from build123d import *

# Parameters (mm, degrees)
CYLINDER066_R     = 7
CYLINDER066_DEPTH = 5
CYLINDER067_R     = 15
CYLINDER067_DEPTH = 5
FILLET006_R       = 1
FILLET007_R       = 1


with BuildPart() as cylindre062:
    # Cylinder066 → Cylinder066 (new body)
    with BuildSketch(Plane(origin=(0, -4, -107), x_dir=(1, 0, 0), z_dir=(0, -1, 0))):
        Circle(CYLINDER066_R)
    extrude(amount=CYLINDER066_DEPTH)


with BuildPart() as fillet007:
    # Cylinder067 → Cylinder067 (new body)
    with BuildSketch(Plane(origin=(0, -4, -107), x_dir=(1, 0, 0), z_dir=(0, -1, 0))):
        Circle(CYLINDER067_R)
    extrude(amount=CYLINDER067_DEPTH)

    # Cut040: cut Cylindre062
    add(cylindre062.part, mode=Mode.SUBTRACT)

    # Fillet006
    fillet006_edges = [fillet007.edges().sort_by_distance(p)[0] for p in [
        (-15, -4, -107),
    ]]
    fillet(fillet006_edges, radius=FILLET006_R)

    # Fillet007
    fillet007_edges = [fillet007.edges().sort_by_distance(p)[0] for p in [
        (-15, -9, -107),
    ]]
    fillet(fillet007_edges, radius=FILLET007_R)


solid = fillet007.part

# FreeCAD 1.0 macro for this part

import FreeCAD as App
import Part
import Sketcher

V = App.Vector


def edges_at(feature, points):
    """Names of the edges that pass closest to the given points."""
    edges = feature.Shape.Edges
    near = lambda p: min(range(len(edges)), key=lambda i: edges[i].distToShape(Part.Vertex(*p))[0])
    return sorted({f"Edge{near(p) + 1}" for p in points})

doc = App.newDocument("Part")
body = doc.addObject("PartDesign::Body", "Body")

# Sketch on XZ plane
sketch1 = body.newObject("Sketcher::SketchObject", "Sketch")
sketch1.AttachmentSupport = (doc.getObject("XZ_Plane"), [""])
sketch1.MapMode = "FlatFace"
sketch1.AttachmentOffset = App.Placement(V(0, 0, 4), App.Rotation())
sketch1.addGeometry(Part.Circle(V(0, -107, 0), V(0, 0, 1), 7), False)
sketch1.addConstraint(Sketcher.Constraint("PointOnObject", 0, 3, -2))
sketch1.addConstraint(Sketcher.Constraint("Diameter", 0, 14.0))
sketch1.addConstraint(Sketcher.Constraint("DistanceY", 0, 3, -1, 1, 107.0))
pad1 = body.newObject("PartDesign::Pad", "Pad")
pad1.Profile = sketch1
pad1.Length = 5
body2 = doc.addObject("PartDesign::Body", "Body001")

# Sketch on XZ plane
sketch2 = body2.newObject("Sketcher::SketchObject", "Sketch001")
sketch2.AttachmentSupport = (doc.getObject("XZ_Plane001"), [""])
sketch2.MapMode = "FlatFace"
sketch2.AttachmentOffset = App.Placement(V(0, 0, 4), App.Rotation())
sketch2.addGeometry(Part.Circle(V(0, -107, 0), V(0, 0, 1), 15), False)
sketch2.addConstraint(Sketcher.Constraint("PointOnObject", 0, 3, -2))
sketch2.addConstraint(Sketcher.Constraint("Diameter", 0, 30.0))
sketch2.addConstraint(Sketcher.Constraint("DistanceY", 0, 3, -1, 1, 107.0))
pad2 = body2.newObject("PartDesign::Pad", "Pad001")
pad2.Profile = sketch2
pad2.Length = 5
doc.recompute()

boolean = body2.newObject("PartDesign::Boolean", "Boolean")
boolean.Type = "Cut"
boolean.addObjects([body])
doc.recompute()

fillet = body2.newObject("PartDesign::Fillet", "Fillet")
fillet.Base = (boolean, edges_at(boolean, [(-15, -4, -107)]))
fillet.Radius = 1
doc.recompute()

fillet2 = body2.newObject("PartDesign::Fillet", "Fillet001")
fillet2.Base = (fillet, edges_at(fillet, [(-15, -9, -107)]))
fillet2.Radius = 1

doc.recompute()
